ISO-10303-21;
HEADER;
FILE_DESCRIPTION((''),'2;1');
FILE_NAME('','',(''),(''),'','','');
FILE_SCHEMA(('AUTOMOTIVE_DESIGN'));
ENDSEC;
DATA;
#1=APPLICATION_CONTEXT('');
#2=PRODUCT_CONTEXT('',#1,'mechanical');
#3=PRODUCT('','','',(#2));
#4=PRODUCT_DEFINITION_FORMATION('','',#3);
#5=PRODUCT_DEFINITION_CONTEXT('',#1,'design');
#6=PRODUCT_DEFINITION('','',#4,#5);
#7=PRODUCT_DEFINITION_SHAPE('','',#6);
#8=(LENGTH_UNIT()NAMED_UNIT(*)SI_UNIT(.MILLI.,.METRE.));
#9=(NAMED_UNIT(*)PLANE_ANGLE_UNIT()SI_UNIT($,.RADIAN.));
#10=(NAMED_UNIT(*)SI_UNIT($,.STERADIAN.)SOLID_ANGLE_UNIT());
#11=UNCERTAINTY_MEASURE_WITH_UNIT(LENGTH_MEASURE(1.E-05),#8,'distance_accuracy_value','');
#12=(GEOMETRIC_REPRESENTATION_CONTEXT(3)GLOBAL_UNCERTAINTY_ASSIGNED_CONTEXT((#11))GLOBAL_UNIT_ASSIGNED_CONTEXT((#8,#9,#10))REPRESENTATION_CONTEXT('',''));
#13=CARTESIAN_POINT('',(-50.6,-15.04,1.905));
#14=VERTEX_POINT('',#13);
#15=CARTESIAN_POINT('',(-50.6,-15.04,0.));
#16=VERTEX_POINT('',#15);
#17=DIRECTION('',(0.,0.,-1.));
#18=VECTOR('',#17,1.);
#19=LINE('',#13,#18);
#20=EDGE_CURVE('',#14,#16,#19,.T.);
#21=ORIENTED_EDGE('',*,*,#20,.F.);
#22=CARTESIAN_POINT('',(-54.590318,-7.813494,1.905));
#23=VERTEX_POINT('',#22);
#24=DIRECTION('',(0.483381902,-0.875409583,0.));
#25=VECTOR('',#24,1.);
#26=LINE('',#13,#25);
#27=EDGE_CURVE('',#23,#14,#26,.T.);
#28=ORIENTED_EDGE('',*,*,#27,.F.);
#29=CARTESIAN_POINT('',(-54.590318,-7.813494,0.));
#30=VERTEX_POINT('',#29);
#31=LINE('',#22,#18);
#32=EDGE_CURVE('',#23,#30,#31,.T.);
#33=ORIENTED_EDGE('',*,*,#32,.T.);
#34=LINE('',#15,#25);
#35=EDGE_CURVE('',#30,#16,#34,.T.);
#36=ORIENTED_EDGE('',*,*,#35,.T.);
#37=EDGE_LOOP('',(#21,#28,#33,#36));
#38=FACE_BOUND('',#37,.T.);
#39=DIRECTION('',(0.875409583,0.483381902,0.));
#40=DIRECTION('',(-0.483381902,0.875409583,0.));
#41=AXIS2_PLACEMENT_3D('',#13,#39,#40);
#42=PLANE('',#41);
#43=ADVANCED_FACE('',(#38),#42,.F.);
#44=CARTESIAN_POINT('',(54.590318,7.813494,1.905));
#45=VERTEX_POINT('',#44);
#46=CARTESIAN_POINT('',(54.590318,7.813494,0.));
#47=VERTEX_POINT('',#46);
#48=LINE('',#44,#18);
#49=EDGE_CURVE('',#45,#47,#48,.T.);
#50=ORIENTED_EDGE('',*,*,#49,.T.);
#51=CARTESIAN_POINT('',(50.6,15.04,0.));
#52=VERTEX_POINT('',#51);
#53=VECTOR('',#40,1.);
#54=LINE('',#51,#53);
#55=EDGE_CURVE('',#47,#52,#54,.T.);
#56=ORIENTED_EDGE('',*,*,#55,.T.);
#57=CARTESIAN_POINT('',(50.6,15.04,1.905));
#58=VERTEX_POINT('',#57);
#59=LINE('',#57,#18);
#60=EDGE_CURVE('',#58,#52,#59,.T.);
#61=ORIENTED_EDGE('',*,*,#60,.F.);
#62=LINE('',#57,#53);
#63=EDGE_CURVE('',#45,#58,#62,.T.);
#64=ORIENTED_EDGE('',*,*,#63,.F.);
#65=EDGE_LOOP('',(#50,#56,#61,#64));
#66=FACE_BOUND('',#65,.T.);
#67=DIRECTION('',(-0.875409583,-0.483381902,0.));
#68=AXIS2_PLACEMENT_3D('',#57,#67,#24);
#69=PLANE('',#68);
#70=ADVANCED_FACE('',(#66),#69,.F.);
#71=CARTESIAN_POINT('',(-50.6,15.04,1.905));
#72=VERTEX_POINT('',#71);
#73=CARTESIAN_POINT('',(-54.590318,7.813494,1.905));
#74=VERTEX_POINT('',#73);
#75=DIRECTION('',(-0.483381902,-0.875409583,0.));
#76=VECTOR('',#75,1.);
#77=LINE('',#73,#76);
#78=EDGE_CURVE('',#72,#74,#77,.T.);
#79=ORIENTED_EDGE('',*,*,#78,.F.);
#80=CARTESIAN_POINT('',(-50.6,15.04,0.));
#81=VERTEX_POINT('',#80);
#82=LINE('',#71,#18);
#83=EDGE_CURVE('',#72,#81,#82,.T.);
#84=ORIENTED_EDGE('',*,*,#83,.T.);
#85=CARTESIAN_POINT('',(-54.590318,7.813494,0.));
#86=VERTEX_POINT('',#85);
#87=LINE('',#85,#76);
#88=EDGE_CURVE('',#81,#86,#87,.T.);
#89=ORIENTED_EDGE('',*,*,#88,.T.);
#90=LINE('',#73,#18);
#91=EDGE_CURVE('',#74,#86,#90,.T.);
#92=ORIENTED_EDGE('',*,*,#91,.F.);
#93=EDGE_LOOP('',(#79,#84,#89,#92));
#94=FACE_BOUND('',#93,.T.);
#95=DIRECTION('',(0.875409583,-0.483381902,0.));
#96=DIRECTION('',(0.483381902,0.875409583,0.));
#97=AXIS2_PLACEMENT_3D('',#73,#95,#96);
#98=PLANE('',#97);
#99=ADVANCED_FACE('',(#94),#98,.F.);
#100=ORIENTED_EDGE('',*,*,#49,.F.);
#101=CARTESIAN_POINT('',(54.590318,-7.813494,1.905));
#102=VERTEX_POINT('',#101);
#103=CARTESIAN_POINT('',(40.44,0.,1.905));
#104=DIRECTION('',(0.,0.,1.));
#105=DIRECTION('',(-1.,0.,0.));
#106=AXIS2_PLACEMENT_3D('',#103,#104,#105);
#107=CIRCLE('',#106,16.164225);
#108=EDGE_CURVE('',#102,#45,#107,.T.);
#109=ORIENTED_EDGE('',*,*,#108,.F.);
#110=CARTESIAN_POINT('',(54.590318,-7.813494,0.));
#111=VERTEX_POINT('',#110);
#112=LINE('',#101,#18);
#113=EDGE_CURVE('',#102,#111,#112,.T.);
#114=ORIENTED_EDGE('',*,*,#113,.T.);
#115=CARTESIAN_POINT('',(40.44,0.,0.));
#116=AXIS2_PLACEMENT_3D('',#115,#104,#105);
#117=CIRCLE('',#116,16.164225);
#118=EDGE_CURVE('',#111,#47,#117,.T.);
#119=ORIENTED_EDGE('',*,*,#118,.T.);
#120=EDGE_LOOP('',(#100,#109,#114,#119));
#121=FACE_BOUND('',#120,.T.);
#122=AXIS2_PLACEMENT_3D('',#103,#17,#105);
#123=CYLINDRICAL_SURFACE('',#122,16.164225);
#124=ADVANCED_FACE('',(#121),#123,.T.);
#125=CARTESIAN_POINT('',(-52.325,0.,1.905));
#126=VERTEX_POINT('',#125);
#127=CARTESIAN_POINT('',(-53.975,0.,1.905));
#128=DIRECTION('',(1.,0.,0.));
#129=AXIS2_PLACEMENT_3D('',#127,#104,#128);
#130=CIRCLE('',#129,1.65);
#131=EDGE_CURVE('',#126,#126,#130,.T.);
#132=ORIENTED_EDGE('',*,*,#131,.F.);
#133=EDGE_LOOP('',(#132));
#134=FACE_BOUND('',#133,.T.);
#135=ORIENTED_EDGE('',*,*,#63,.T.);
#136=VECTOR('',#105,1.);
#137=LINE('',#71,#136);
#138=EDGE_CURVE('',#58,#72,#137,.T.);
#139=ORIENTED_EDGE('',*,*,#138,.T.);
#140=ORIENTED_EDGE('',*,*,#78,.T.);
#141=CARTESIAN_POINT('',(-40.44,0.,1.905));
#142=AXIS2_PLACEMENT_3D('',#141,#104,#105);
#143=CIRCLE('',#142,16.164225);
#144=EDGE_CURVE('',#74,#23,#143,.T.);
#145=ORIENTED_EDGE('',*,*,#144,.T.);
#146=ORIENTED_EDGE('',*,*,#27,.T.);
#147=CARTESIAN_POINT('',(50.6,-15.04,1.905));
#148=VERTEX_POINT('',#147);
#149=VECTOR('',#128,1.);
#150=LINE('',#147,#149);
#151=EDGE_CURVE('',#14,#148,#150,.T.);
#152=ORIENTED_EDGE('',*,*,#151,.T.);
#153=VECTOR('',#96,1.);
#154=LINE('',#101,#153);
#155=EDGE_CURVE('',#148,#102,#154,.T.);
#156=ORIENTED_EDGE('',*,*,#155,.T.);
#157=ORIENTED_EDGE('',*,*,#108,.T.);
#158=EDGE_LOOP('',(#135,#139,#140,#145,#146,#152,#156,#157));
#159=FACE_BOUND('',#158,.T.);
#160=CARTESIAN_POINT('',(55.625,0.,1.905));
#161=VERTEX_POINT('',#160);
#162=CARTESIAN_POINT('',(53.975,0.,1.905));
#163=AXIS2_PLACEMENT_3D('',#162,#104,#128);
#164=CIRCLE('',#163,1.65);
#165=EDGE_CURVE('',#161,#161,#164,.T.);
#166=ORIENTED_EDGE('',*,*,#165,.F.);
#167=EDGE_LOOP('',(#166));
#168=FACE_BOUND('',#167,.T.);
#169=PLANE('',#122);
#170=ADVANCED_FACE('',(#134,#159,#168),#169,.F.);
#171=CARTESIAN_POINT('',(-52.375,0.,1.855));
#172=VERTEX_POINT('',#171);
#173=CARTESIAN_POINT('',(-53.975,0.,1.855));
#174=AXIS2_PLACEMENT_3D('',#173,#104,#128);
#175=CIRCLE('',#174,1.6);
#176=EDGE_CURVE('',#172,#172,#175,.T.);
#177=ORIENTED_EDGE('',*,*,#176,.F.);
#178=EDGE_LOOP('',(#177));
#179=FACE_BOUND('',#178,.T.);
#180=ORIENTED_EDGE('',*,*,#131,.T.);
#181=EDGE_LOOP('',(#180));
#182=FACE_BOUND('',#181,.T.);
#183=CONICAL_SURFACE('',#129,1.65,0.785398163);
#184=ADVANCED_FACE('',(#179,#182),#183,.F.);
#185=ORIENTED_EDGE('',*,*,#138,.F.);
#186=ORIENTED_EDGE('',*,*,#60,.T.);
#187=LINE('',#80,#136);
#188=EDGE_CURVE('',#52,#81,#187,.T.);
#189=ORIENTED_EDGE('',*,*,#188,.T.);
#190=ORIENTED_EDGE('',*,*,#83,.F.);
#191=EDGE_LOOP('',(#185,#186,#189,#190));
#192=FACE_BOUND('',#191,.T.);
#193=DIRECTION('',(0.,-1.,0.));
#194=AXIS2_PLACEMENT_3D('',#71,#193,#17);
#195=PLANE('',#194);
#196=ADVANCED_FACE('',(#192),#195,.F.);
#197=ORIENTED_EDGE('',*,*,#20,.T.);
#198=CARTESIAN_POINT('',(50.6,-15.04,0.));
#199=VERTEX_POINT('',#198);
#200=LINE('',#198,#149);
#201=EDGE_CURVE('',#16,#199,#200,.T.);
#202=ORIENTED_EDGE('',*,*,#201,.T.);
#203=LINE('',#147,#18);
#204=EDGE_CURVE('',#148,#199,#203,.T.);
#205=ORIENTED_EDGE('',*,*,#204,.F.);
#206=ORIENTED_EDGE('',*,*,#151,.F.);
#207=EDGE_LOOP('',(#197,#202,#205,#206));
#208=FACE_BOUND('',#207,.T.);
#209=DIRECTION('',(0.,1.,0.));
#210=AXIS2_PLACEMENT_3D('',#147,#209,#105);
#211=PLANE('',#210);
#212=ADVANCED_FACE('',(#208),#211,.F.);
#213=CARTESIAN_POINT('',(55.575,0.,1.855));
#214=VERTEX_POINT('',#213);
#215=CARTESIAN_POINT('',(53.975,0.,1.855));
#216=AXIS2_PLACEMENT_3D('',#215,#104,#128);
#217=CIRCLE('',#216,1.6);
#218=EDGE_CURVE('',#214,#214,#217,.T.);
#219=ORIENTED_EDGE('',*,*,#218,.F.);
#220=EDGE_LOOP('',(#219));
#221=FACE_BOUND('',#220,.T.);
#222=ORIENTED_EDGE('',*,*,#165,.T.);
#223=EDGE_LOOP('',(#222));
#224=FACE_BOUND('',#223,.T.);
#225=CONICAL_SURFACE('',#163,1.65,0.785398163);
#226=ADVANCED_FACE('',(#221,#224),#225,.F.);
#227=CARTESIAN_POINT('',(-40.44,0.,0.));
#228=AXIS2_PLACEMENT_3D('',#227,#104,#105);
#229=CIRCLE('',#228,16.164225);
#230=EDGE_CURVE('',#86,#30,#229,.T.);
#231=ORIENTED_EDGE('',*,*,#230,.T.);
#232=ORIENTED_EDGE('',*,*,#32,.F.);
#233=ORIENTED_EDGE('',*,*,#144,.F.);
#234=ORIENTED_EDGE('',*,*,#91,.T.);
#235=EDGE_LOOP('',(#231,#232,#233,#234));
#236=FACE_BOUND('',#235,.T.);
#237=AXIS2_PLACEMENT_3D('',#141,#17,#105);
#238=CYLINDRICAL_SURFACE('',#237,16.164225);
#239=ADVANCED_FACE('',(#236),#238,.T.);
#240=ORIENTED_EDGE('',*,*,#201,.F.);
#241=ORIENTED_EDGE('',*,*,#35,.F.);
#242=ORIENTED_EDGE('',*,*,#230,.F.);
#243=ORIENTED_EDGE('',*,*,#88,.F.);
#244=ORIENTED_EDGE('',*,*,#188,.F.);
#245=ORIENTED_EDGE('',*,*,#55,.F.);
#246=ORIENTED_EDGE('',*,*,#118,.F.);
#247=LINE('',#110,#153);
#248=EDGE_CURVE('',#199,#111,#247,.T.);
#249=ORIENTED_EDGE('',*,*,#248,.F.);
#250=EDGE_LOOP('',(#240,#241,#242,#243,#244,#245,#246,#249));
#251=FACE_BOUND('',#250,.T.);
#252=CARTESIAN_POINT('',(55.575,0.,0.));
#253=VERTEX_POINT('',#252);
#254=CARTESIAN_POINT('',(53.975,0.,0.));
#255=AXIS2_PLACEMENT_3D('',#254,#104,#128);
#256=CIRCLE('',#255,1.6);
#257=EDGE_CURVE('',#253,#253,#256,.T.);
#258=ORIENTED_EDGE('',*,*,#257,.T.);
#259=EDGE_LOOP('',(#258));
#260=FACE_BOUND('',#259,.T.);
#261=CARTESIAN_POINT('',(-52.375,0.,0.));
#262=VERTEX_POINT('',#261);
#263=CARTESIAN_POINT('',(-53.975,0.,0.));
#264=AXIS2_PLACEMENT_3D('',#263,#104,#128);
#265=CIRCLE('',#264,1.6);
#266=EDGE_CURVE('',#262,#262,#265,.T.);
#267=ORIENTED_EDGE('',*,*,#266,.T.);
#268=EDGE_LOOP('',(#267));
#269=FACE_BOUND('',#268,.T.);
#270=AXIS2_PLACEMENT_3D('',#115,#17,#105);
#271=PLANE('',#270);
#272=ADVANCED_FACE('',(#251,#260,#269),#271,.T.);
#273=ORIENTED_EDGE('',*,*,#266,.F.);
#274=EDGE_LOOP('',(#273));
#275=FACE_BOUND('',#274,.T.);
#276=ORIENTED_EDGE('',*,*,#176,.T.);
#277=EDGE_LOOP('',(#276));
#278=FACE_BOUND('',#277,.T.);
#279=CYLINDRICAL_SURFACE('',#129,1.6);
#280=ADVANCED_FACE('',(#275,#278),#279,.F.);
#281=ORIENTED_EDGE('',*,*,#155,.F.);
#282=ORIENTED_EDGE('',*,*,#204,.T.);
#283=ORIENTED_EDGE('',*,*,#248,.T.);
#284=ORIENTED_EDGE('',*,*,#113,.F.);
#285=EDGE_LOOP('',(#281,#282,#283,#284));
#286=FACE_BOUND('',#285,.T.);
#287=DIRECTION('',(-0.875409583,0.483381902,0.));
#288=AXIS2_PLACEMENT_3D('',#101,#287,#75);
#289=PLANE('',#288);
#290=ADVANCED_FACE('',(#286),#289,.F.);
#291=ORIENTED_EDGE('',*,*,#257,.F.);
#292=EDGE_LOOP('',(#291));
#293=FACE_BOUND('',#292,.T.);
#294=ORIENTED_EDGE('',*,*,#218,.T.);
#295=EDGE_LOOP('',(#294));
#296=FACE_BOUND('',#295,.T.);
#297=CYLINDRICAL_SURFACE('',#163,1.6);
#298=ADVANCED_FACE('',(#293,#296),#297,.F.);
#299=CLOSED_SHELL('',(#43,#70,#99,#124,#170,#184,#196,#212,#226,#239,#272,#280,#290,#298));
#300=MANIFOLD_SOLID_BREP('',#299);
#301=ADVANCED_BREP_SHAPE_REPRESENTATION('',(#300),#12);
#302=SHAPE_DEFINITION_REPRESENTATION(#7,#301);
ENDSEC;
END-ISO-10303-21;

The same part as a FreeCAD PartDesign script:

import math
import FreeCAD as App
import Part
import Sketcher
from FreeCAD import Vector
Q = App.Units.Quantity

doc = App.newDocument("Part")
body = doc.addObject("PartDesign::Body", "Body")

sketch1 = body.newObject("Sketcher::SketchObject", "Sketch")
sketch1.AttachmentSupport = (doc.getObject("XY_Plane"), [""])
sketch1.MapMode = "FlatFace"
sketch1.addGeometry(Part.LineSegment(Vector(51, 15, 0), Vector(-51, 15, 0)), False)
sketch1.addGeometry(Part.LineSegment(Vector(-51, 15, 0), Vector(-55, 8, 0)), False)
sketch1.addGeometry(Part.ArcOfCircle(Part.Circle(Vector(-40, 0, 0), Vector(0, 0, 1), 16), math.radians(151), math.radians(209)), False)
sketch1.addGeometry(Part.LineSegment(Vector(-55, -8, 0), Vector(-51, -15, 0)), False)
sketch1.addGeometry(Part.LineSegment(Vector(-51, -15, 0), Vector(51, -15, 0)), False)
sketch1.addGeometry(Part.LineSegment(Vector(51, -15, 0), Vector(55, -8, 0)), False)
sketch1.addGeometry(Part.ArcOfCircle(Part.Circle(Vector(40, 0, 0), Vector(0, 0, 1), 16), math.radians(-29), math.radians(29)), False)
sketch1.addGeometry(Part.LineSegment(Vector(55, 8, 0), Vector(51, 15, 0)), False)
sketch1.addConstraint(Sketcher.Constraint("Coincident", 0, 2, 1, 1))
sketch1.addConstraint(Sketcher.Constraint("Tangent", 1, 2, 2, 1))
sketch1.addConstraint(Sketcher.Constraint("Tangent", 2, 2, 3, 1))
sketch1.addConstraint(Sketcher.Constraint("Coincident", 3, 2, 4, 1))
sketch1.addConstraint(Sketcher.Constraint("Coincident", 4, 2, 5, 1))
sketch1.addConstraint(Sketcher.Constraint("Tangent", 5, 2, 6, 1))
sketch1.addConstraint(Sketcher.Constraint("Tangent", 6, 2, 7, 1))
sketch1.addConstraint(Sketcher.Constraint("Coincident", 7, 2, 0, 1))
sketch1.addConstraint(Sketcher.Constraint("Horizontal", 0))
sketch1.addConstraint(Sketcher.Constraint("Horizontal", 4))
sketch1.addConstraint(Sketcher.Constraint("Equal", 2, 6))
sketch1.addConstraint(Sketcher.Constraint("Symmetric", 2, 3, 6, 3, -1, 1))
sketch1.addConstraint(Sketcher.Constraint("Symmetric", 0, 2, 4, 2, -1, 1))
sketch1.addConstraint(Sketcher.Constraint("Symmetric", 2, 2, 5, 2, -2))
sketch1.addConstraint(Sketcher.Constraint("Parallel", 3, 7))
sketch1.addConstraint(Sketcher.Constraint("DistanceX", 0, 2, 0, 1, Q("101.2 mm")))
sketch1.addConstraint(Sketcher.Constraint("DistanceX", 2, 3, -1, 1, Q("40.44 mm")))
sketch1.addConstraint(Sketcher.Constraint("DistanceY", -1, 1, 0, 2, Q("15.04 mm")))
sketch1.addConstraint(Sketcher.Constraint("Distance", 1, Q("8.255 mm")))
pad1 = body.newObject("PartDesign::Pad", "Pad")
pad1.Profile = sketch1
pad1.Length = 1.905

sketch2 = body.newObject("Sketcher::SketchObject", "Sketch001")
sketch2.AttachmentSupport = (doc.getObject("XY_Plane"), [""])
sketch2.MapMode = "FlatFace"
sketch2.AttachmentOffset = App.Placement(Vector(0, 0, 1.905), App.Rotation())
sketch2.addGeometry(Part.Circle(Vector(54, 0, 0), Vector(0, 0, 1), 1.6), False)
sketch2.addGeometry(Part.Circle(Vector(-54, 0, 0), Vector(0, 0, 1), 1.6), False)
sketch2.addConstraint(Sketcher.Constraint("Equal", 0, 1))
sketch2.addConstraint(Sketcher.Constraint("Symmetric", 0, 3, 1, 3, -1, 1))
sketch2.addConstraint(Sketcher.Constraint("PointOnObject", 0, 3, -1))
sketch2.addConstraint(Sketcher.Constraint("Diameter", 0, Q("3.2 mm")))
sketch2.addConstraint(Sketcher.Constraint("DistanceX", 1, 3, 0, 3, Q("107.95 mm")))
doc.recompute()
hole = body.newObject("PartDesign::Hole", "Hole")
hole.Profile = sketch2
hole.ThreadType = "None"
hole.Diameter = 3.2
hole.DepthType = "ThroughAll"
hole.HoleCutType = "Countersink"
hole.HoleCutDiameter = 3.3
hole.HoleCutCountersinkAngle = 90

doc.recompute()
